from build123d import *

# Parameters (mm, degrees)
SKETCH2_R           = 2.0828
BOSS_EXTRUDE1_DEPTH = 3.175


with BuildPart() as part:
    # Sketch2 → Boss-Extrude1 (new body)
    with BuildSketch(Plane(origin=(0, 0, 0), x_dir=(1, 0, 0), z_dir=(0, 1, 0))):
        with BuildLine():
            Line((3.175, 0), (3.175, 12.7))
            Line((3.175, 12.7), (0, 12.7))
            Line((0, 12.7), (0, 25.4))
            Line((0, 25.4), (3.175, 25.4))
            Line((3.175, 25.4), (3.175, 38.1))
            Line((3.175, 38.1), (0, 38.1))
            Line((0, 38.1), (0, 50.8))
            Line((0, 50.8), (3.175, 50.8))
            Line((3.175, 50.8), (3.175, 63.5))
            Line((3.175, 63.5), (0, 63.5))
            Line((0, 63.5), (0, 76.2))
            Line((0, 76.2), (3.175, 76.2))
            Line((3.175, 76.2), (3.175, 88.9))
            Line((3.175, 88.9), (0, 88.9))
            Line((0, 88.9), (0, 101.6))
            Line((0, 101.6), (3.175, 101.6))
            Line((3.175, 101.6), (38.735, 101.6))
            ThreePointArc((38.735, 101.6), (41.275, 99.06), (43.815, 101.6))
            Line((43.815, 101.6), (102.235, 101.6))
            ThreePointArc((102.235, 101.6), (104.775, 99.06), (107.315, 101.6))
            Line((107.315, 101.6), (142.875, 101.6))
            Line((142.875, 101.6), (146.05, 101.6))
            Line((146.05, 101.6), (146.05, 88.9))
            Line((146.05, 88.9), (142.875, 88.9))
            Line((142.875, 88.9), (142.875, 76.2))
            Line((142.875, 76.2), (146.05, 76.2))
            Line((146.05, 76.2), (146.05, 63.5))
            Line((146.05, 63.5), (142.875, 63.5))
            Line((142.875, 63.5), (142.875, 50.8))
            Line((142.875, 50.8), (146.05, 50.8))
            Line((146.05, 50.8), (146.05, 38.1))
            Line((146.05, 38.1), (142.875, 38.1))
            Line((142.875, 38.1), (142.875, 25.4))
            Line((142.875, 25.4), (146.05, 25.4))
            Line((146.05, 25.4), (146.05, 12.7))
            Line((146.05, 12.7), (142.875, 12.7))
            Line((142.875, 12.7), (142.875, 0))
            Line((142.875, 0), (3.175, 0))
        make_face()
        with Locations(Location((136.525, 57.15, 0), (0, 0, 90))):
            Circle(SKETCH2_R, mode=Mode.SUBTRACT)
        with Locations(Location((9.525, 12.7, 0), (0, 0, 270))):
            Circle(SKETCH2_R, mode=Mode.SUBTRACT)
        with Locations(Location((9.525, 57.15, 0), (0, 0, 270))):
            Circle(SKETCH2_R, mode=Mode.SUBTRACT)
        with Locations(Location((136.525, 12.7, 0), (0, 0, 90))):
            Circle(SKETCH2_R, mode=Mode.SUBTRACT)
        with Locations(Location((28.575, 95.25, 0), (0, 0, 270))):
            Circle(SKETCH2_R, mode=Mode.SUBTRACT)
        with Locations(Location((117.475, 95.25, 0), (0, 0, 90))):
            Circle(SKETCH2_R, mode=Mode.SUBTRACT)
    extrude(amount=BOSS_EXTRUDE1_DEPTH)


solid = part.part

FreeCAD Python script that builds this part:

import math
import FreeCAD as App
import Part
import Sketcher
Q = App.Units.Quantity

doc = App.newDocument("Part")
body = doc.addObject("PartDesign::Body", "Body")

# Sketch on XZ plane
sketch1 = body.newObject("Sketcher::SketchObject", "Sketch")
sketch1.AttachmentSupport = (doc.getObject("XZ_Plane"), [""])
sketch1.MapMode = "FlatFace"
sketch1.addGeometry([
    Part.LineSegment(App.Vector(3.2, -12.7, 0), App.Vector(3.2, 0, 0)),  # 0
    Part.LineSegment(App.Vector(3.2, 0, 0), App.Vector(142.9, 0, 0)),  # 1
    Part.LineSegment(App.Vector(142.9, 0, 0), App.Vector(142.9, -12.7, 0)),  # 2
    Part.LineSegment(App.Vector(142.9, -12.7, 0), App.Vector(146.1, -12.7, 0)),  # 3
    Part.LineSegment(App.Vector(146.1, -12.7, 0), App.Vector(146.1, -25.4, 0)),  # 4
    Part.LineSegment(App.Vector(146.1, -25.4, 0), App.Vector(142.9, -25.4, 0)),  # 5
    Part.LineSegment(App.Vector(142.9, -25.4, 0), App.Vector(142.9, -38.1, 0)),  # 6
    Part.LineSegment(App.Vector(142.9, -38.1, 0), App.Vector(146.1, -38.1, 0)),  # 7
    Part.LineSegment(App.Vector(146.1, -38.1, 0), App.Vector(146.1, -50.8, 0)),  # 8
    Part.LineSegment(App.Vector(146.1, -50.8, 0), App.Vector(142.9, -50.8, 0)),  # 9
    Part.LineSegment(App.Vector(142.9, -50.8, 0), App.Vector(142.9, -63.5, 0)),  # 10
    Part.LineSegment(App.Vector(142.9, -63.5, 0), App.Vector(146.1, -63.5, 0)),  # 11
    Part.LineSegment(App.Vector(146.1, -63.5, 0), App.Vector(146.1, -76.2, 0)),  # 12
    Part.LineSegment(App.Vector(146.1, -76.2, 0), App.Vector(142.9, -76.2, 0)),  # 13
    Part.LineSegment(App.Vector(142.9, -76.2, 0), App.Vector(142.9, -88.9, 0)),  # 14
    Part.LineSegment(App.Vector(142.9, -88.9, 0), App.Vector(146.1, -88.9, 0)),  # 15
    Part.LineSegment(App.Vector(146.1, -88.9, 0), App.Vector(146.1, -101.6, 0)),  # 16
    Part.LineSegment(App.Vector(146.1, -101.6, 0), App.Vector(107.3, -101.6, 0)),  # 17
    Part.ArcOfCircle(Part.Circle(App.Vector(104.8, -101.6, 0), App.Vector(0, 0, 1), 2.5), math.radians(0), math.radians(180)),  # 18
    Part.LineSegment(App.Vector(102.2, -101.6, 0), App.Vector(43.8, -101.6, 0)),  # 19
    Part.ArcOfCircle(Part.Circle(App.Vector(41.3, -101.6, 0), App.Vector(0, 0, 1), 2.5), math.radians(0), math.radians(180)),  # 20
    Part.LineSegment(App.Vector(38.7, -101.6, 0), App.Vector(0, -101.6, 0)),  # 21
    Part.LineSegment(App.Vector(0, -101.6, 0), App.Vector(0, -88.9, 0)),  # 22
    Part.LineSegment(App.Vector(0, -88.9, 0), App.Vector(3.2, -88.9, 0)),  # 23
    Part.LineSegment(App.Vector(3.2, -88.9, 0), App.Vector(3.2, -76.2, 0)),  # 24
    Part.LineSegment(App.Vector(3.2, -76.2, 0), App.Vector(0, -76.2, 0)),  # 25
    Part.LineSegment(App.Vector(0, -76.2, 0), App.Vector(0, -63.5, 0)),  # 26
    Part.LineSegment(App.Vector(0, -63.5, 0), App.Vector(3.2, -63.5, 0)),  # 27
    Part.LineSegment(App.Vector(3.2, -63.5, 0), App.Vector(3.2, -50.8, 0)),  # 28
    Part.LineSegment(App.Vector(3.2, -50.8, 0), App.Vector(0, -50.8, 0)),  # 29
    Part.LineSegment(App.Vector(0, -50.8, 0), App.Vector(0, -38.1, 0)),  # 30
    Part.LineSegment(App.Vector(0, -38.1, 0), App.Vector(3.2, -38.1, 0)),  # 31
    Part.LineSegment(App.Vector(3.2, -38.1, 0), App.Vector(3.2, -25.4, 0)),  # 32
    Part.LineSegment(App.Vector(3.2, -25.4, 0), App.Vector(0, -25.4, 0)),  # 33
    Part.LineSegment(App.Vector(0, -25.4, 0), App.Vector(0, -12.7, 0)),  # 34
    Part.LineSegment(App.Vector(0, -12.7, 0), App.Vector(3.2, -12.7, 0)),  # 35
    Part.Circle(App.Vector(136.5, -12.7, 0), App.Vector(0, 0, 1), 2.1),  # 36
    Part.Circle(App.Vector(9.5, -12.7, 0), App.Vector(0, 0, 1), 2.1),  # 37
    Part.Circle(App.Vector(136.5, -57.1, 0), App.Vector(0, 0, 1), 2.1),  # 38
    Part.Circle(App.Vector(117.5, -95.2, 0), App.Vector(0, 0, 1), 2.1),  # 39
    Part.Circle(App.Vector(9.5, -57.1, 0), App.Vector(0, 0, 1), 2.1),  # 40
    Part.Circle(App.Vector(28.6, -95.2, 0), App.Vector(0, 0, 1), 2.1),  # 41
], False)
sketch1.addConstraint([
    Sketcher.Constraint("Coincident", 0, 2, 1, 1),
    Sketcher.Constraint("Coincident", 1, 2, 2, 1),
    Sketcher.Constraint("Coincident", 2, 2, 3, 1),
    Sketcher.Constraint("Coincident", 3, 2, 4, 1),
    Sketcher.Constraint("Coincident", 4, 2, 5, 1),
    Sketcher.Constraint("Coincident", 5, 2, 6, 1),
    Sketcher.Constraint("Coincident", 6, 2, 7, 1),
    Sketcher.Constraint("Coincident", 7, 2, 8, 1),
    Sketcher.Constraint("Coincident", 8, 2, 9, 1),
    Sketcher.Constraint("Coincident", 9, 2, 10, 1),
    Sketcher.Constraint("Coincident", 10, 2, 11, 1),
    Sketcher.Constraint("Coincident", 11, 2, 12, 1),
    Sketcher.Constraint("Coincident", 12, 2, 13, 1),
    Sketcher.Constraint("Coincident", 13, 2, 14, 1),
    Sketcher.Constraint("Coincident", 14, 2, 15, 1),
    Sketcher.Constraint("Coincident", 15, 2, 16, 1),
    Sketcher.Constraint("Coincident", 16, 2, 17, 1),
    Sketcher.Constraint("Coincident", 17, 2, 18, 1),
    Sketcher.Constraint("Coincident", 18, 2, 19, 1),
    Sketcher.Constraint("Coincident", 19, 2, 20, 1),
    Sketcher.Constraint("Coincident", 20, 2, 21, 1),
    Sketcher.Constraint("Coincident", 21, 2, 22, 1),
    Sketcher.Constraint("Coincident", 22, 2, 23, 1),
    Sketcher.Constraint("Coincident", 23, 2, 24, 1),
    Sketcher.Constraint("Coincident", 24, 2, 25, 1),
    Sketcher.Constraint("Coincident", 25, 2, 26, 1),
    Sketcher.Constraint("Coincident", 26, 2, 27, 1),
    Sketcher.Constraint("Coincident", 27, 2, 28, 1),
    Sketcher.Constraint("Coincident", 28, 2, 29, 1),
    Sketcher.Constraint("Coincident", 29, 2, 30, 1),
    Sketcher.Constraint("Coincident", 30, 2, 31, 1),
    Sketcher.Constraint("Coincident", 31, 2, 32, 1),
    Sketcher.Constraint("Coincident", 32, 2, 33, 1),
    Sketcher.Constraint("Coincident", 33, 2, 34, 1),
    Sketcher.Constraint("Coincident", 34, 2, 35, 1),
    Sketcher.Constraint("Coincident", 35, 2, 0, 1),
    Sketcher.Constraint("Vertical", 0),
    Sketcher.Constraint("Horizontal", 1),
    Sketcher.Constraint("Vertical", 2),
    Sketcher.Constraint("Horizontal", 3),
    Sketcher.Constraint("Vertical", 4),
    Sketcher.Constraint("Horizontal", 5),
    Sketcher.Constraint("Vertical", 6),
    Sketcher.Constraint("Horizontal", 7),
    Sketcher.Constraint("Vertical", 8),
    Sketcher.Constraint("Horizontal", 9),
    Sketcher.Constraint("Vertical", 10),
    Sketcher.Constraint("Horizontal", 11),
    Sketcher.Constraint("Vertical", 12),
    Sketcher.Constraint("Horizontal", 13),
    Sketcher.Constraint("Vertical", 14),
    Sketcher.Constraint("Horizontal", 15),
    Sketcher.Constraint("Vertical", 16),
    Sketcher.Constraint("Horizontal", 17),
    Sketcher.Constraint("Horizontal", 19),
    Sketcher.Constraint("Horizontal", 21),
    Sketcher.Constraint("Vertical", 22),
    Sketcher.Constraint("Horizontal", 23),
    Sketcher.Constraint("Vertical", 24),
    Sketcher.Constraint("Horizontal", 25),
    Sketcher.Constraint("Vertical", 26),
    Sketcher.Constraint("Horizontal", 27),
    Sketcher.Constraint("Vertical", 28),
    Sketcher.Constraint("Horizontal", 29),
    Sketcher.Constraint("Vertical", 30),
    Sketcher.Constraint("Horizontal", 31),
    Sketcher.Constraint("Vertical", 32),
    Sketcher.Constraint("Horizontal", 33),
    Sketcher.Constraint("Vertical", 34),
    Sketcher.Constraint("Horizontal", 35),
    Sketcher.Constraint("Equal", 18, 20),
    Sketcher.Constraint("Equal", 36, 37),
    Sketcher.Constraint("Equal", 37, 38),
    Sketcher.Constraint("Equal", 38, 39),
    Sketcher.Constraint("Equal", 39, 40),
    Sketcher.Constraint("Equal", 40, 41),
    Sketcher.Constraint("PointOnObject", 0, 2, -1),
    Sketcher.Constraint("PointOnObject", 21, 2, -2),
    Sketcher.Constraint("PointOnObject", 25, 2, -2),
    Sketcher.Constraint("PointOnObject", 29, 2, -2),
    Sketcher.Constraint("PointOnObject", 33, 2, -2),
    Sketcher.Constraint("Horizontal", 18, 3, 20, 3),
    Sketcher.Constraint("Horizontal", 36, 3, 37, 3),
    Sketcher.Constraint("Horizontal", 38, 3, 40, 3),
    Sketcher.Constraint("Horizontal", 39, 3, 41, 3),
    Sketcher.Constraint("Horizontal", 37, 3, 2, 2),
    Sketcher.Constraint("Horizontal", 20, 3, 16, 2),
    Sketcher.Constraint("Horizontal", 17, 2, 18, 2),
    Sketcher.Constraint("Horizontal", 19, 2, 20, 2),
    Sketcher.Constraint("Horizontal", 15, 2, 22, 2),
    Sketcher.Constraint("Horizontal", 13, 2, 24, 2),
    Sketcher.Constraint("Horizontal", 11, 2, 26, 2),
    Sketcher.Constraint("Horizontal", 9, 2, 28, 2),
    Sketcher.Constraint("Horizontal", 7, 2, 30, 2),
    Sketcher.Constraint("Horizontal", 5, 2, 32, 2),
    Sketcher.Constraint("Horizontal", 3, 2, 34, 2),
    Sketcher.Constraint("Vertical", 36, 3, 38, 3),
    Sketcher.Constraint("Vertical", 37, 3, 40, 3),
    Sketcher.Constraint("Vertical", 2, 2, 5, 2),
    Sketcher.Constraint("Vertical", 4, 2, 7, 2),
    Sketcher.Constraint("Vertical", 6, 2, 9, 2),
    Sketcher.Constraint("Vertical", 8, 2, 11, 2),
    Sketcher.Constraint("Vertical", 10, 2, 13, 2),
    Sketcher.Constraint("Vertical", 12, 2, 15, 2),
    Sketcher.Constraint("Vertical", 0, 2, 23, 2),
    Sketcher.Constraint("Vertical", 24, 2, 27, 2),
    Sketcher.Constraint("Vertical", 28, 2, 31, 2),
    Sketcher.Constraint("Equal", 17, 21),
    Sketcher.Constraint("Equal", 15, 23),
    Sketcher.Constraint("Equal", 2, 4),
    Sketcher.Constraint("Equal", 4, 6),
    Sketcher.Constraint("Equal", 6, 8),
    Sketcher.Constraint("Equal", 8, 10),
    Sketcher.Constraint("Equal", 10, 12),
    Sketcher.Constraint("Equal", 12, 14),
    Sketcher.Constraint("Equal", 14, 16),
    Sketcher.Constraint("Radius", 18, Q("0.1 in")),
    Sketcher.Constraint("Diameter", 36, Q("0.164 in")),
    Sketcher.Constraint("DistanceX", 1, 1, 1, 2, Q("5.5 in")),
    Sketcher.Constraint("DistanceX", 19, 2, 19, 1, Q("2.3 in")),
    Sketcher.Constraint("DistanceY", 0, 1, 0, 2, Q("0.5 in")),
    Sketcher.Constraint("DistanceX", 37, 3, 36, 3, Q("5 in")),
    Sketcher.Constraint("DistanceX", 20, 3, 39, 3, Q("3 in")),
    Sketcher.Constraint("DistanceX", 41, 3, 18, 3, Q("3 in")),
    Sketcher.Constraint("DistanceY", 39, 3, 38, 3, Q("1.5 in")),
    Sketcher.Constraint("DistanceX", 3, 1, 3, 2, Q("0.125 in")),
    Sketcher.Constraint("DistanceY", 38, 3, -1, 1, Q("2.25 in")),
    Sketcher.Constraint("DistanceX", 18, 3, 36, 3, Q("1.25 in")),
])
pad1 = body.newObject("PartDesign::Pad", "Pad")
pad1.Profile = sketch1
pad1.Length = Q("0.125 in")
pad1.Reversed = True

doc.recompute()
